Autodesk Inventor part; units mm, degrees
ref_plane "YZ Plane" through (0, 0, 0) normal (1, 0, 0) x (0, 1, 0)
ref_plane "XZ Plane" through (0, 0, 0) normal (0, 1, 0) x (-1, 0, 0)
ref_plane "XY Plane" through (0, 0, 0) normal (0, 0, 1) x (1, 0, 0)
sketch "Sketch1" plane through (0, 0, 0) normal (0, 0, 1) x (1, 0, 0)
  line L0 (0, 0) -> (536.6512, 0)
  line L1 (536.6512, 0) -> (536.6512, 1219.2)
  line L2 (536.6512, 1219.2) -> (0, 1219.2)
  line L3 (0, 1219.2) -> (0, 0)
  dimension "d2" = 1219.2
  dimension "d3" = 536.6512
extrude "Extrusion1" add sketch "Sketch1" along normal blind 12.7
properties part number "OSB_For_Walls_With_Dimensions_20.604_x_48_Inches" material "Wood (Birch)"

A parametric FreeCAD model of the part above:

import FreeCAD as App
import Part
import Sketcher
from FreeCAD import Vector
Q = App.Units.Quantity

doc = App.newDocument("Part")
body = doc.addObject("PartDesign::Body", "Body")

# Sketch on XY plane
sketch1 = body.newObject("Sketcher::SketchObject", "Sketch")
sketch1.AttachmentSupport = (doc.getObject("XY_Plane"), [""])
sketch1.MapMode = "FlatFace"
sketch1.addGeometry([
    Part.LineSegment(Vector(0, 1219.2, 0), Vector(0, 0, 0)),
    Part.LineSegment(Vector(0, 0, 0), Vector(536.6512, 0, 0)),
    Part.LineSegment(Vector(536.6512, 0, 0), Vector(536.6512, 1219.2, 0)),
    Part.LineSegment(Vector(536.6512, 1219.2, 0), Vector(0, 1219.2, 0)),
], False)
sketch1.addConstraint([
    Sketcher.Constraint("Coincident", 0, 2, 1, 1),
    Sketcher.Constraint("Coincident", 1, 2, 2, 1),
    Sketcher.Constraint("Coincident", 2, 2, 3, 1),
    Sketcher.Constraint("Coincident", 3, 2, 0, 1),
    Sketcher.Constraint("Vertical", 0),
    Sketcher.Constraint("Horizontal", 1),
    Sketcher.Constraint("Vertical", 2),
    Sketcher.Constraint("Horizontal", 3),
    Sketcher.Constraint("Coincident", 0, 2, -1, 1),
    Sketcher.Constraint("DistanceY", 0, 2, 0, 1, Q("48 in")),
    Sketcher.Constraint("DistanceX", 1, 1, 1, 2, Q("21.128 in")),
])
pad1 = body.newObject("PartDesign::Pad", "Pad")
pad1.Profile = sketch1
pad1.Length = Q("0.5 in")

doc.recompute()
